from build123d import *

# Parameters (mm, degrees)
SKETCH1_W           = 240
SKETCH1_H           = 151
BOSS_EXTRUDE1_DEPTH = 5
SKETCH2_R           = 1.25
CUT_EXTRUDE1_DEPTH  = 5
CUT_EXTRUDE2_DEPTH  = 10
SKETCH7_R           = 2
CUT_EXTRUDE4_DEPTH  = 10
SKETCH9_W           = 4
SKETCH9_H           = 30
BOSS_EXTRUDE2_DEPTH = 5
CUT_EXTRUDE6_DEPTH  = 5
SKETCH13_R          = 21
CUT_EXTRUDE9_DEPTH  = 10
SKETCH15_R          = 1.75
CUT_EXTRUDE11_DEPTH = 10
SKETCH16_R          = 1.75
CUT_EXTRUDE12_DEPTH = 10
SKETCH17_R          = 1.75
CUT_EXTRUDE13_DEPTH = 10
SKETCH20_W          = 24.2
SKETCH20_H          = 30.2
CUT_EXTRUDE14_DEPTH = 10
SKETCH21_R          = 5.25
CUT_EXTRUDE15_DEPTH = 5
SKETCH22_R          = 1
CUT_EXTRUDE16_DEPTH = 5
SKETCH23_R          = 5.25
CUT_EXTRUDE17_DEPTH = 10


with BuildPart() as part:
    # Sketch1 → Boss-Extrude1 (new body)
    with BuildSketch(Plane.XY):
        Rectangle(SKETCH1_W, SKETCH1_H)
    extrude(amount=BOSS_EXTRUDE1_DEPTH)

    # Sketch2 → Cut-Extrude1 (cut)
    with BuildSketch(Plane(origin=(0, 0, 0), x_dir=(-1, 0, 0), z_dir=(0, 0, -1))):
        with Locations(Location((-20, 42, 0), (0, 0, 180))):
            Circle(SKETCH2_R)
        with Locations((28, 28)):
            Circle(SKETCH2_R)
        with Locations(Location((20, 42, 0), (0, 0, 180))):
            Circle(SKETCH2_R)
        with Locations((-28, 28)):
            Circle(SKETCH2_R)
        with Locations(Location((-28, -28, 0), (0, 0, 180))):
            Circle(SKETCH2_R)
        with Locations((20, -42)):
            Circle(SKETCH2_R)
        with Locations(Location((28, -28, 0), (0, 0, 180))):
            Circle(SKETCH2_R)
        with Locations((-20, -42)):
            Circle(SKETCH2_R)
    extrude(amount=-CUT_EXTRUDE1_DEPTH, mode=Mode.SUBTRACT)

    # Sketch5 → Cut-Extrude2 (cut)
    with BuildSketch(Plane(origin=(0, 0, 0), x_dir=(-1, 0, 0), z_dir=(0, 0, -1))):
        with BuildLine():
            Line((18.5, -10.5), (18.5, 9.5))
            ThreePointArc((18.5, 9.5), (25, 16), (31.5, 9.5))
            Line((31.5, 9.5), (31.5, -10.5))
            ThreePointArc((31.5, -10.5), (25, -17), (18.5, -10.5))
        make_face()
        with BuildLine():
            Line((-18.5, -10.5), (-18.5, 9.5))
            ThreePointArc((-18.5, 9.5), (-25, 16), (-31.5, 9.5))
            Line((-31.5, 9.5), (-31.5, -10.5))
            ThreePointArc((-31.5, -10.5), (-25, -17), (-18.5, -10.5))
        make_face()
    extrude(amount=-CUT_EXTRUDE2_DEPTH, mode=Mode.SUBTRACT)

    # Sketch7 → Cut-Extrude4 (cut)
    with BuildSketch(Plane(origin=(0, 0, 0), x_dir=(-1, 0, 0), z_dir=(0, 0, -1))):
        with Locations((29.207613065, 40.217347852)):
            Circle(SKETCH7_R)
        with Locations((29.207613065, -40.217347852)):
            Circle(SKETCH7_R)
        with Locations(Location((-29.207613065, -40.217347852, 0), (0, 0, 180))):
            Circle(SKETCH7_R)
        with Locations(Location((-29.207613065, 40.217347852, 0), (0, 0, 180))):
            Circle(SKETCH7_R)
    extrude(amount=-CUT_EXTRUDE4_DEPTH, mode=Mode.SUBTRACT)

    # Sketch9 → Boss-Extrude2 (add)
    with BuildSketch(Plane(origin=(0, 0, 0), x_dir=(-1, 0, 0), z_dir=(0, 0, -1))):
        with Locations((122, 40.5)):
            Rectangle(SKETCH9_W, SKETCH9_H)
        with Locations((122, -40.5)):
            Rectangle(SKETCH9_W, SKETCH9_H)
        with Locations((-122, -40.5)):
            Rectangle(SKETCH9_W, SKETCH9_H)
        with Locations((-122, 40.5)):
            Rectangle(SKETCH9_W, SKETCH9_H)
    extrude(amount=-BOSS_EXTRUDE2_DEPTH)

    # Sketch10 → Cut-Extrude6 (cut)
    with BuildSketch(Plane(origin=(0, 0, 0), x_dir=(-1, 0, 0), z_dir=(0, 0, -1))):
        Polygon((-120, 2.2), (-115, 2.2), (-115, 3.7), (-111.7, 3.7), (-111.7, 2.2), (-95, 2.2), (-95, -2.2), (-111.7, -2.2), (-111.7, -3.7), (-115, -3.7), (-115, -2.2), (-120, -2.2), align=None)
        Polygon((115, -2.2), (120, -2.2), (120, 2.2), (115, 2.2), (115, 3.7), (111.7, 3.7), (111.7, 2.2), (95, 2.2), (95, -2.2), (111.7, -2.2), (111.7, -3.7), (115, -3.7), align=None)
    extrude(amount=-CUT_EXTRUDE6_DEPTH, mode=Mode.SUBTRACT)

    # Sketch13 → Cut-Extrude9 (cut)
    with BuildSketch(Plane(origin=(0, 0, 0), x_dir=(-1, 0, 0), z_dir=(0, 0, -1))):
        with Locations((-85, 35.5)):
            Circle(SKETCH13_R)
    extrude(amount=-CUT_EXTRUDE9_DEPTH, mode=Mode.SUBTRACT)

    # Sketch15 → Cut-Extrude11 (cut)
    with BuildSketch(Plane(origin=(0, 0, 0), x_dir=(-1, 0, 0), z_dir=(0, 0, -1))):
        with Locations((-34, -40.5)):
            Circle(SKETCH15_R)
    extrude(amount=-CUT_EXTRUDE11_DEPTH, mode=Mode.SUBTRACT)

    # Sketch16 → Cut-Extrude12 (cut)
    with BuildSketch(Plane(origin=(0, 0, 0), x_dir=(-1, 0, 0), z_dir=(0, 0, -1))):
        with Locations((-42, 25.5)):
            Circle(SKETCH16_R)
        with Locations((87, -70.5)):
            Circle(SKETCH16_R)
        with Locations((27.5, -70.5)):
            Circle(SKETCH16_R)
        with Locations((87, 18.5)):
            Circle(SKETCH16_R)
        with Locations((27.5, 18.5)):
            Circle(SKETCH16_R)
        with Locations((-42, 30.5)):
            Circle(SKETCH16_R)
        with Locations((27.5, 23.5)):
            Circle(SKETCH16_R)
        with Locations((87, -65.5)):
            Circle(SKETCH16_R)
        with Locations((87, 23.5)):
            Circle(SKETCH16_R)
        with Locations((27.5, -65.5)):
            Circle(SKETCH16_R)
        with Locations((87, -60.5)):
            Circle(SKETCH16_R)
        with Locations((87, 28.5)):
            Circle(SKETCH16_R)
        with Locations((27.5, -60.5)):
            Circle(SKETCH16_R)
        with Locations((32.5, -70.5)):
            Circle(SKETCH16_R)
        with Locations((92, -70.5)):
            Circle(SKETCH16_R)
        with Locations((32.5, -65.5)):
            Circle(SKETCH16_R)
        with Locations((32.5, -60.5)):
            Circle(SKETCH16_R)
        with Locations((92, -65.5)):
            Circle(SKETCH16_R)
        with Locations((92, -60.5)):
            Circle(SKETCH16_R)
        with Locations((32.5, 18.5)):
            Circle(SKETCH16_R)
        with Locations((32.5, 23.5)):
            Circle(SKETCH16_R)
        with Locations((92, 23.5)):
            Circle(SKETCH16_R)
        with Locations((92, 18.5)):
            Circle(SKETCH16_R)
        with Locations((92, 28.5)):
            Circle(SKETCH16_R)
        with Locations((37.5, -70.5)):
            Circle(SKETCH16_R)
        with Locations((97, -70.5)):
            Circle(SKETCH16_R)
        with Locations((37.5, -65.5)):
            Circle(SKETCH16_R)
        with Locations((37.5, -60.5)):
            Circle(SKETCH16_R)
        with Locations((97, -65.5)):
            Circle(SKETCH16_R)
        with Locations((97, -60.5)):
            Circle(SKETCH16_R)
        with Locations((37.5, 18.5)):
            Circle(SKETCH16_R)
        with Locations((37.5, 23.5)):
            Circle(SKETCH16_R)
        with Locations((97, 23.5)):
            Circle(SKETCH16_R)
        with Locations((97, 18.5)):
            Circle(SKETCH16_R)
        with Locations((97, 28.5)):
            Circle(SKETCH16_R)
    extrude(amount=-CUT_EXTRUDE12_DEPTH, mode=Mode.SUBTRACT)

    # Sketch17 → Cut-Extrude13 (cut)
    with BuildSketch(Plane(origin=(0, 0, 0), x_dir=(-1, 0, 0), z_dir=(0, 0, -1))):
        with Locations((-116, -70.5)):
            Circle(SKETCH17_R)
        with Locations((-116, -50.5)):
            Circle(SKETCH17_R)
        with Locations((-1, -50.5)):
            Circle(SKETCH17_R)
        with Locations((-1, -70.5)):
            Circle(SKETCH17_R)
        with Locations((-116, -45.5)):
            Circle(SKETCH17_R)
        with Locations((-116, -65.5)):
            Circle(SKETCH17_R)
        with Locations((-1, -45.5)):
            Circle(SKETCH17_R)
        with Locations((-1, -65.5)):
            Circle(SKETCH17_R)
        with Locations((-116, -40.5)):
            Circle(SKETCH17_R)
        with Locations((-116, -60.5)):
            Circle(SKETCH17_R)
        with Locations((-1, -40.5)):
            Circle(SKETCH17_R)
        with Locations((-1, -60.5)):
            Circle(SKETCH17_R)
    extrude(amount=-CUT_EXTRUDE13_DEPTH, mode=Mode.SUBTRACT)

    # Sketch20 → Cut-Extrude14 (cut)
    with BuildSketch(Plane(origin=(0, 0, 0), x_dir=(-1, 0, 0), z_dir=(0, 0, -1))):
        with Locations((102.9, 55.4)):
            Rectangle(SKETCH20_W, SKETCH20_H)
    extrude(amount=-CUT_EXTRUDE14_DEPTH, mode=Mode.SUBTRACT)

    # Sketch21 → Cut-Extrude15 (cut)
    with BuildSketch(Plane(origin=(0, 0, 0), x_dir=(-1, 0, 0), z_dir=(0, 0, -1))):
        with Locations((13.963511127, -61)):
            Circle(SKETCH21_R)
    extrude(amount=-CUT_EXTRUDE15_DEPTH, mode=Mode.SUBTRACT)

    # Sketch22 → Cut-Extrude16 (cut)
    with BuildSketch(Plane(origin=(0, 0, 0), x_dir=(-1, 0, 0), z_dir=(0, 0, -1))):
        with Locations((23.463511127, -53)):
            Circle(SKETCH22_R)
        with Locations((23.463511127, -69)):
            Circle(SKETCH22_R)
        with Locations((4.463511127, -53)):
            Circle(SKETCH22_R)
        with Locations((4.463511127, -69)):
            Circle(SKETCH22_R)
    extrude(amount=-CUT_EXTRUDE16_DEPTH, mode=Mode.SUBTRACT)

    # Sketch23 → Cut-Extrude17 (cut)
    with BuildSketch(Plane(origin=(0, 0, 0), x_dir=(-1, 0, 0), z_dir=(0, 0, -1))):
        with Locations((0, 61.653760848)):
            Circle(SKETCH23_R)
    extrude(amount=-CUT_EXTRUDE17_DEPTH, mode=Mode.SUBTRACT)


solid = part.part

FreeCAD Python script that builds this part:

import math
import FreeCAD as App
import Part
import Sketcher

V = App.Vector
Q = App.Units.Quantity


def add_polygon(sketch, points):
    """Adds a closed chain of lines whose ends are joined by coincident constraints."""
    first, n = sketch.GeometryCount, len(points)
    for a, b in zip(points, points[1:] + points[:1]):
        sketch.addGeometry(Part.LineSegment(App.Vector(*a, 0), App.Vector(*b, 0)), False)
    for i in range(n):
        sketch.addConstraint(Sketcher.Constraint("Coincident", first + i, 2, first + (i + 1) % n, 1))

doc = App.newDocument("Part")
body = doc.addObject("PartDesign::Body", "Body")

# Sketch on XY plane
sketch1 = body.newObject("Sketcher::SketchObject", "Sketch")
sketch1.AttachmentSupport = (doc.getObject("XY_Plane"), [""])
sketch1.MapMode = "FlatFace"
add_polygon(sketch1, [(-120, 76), (-120, -76), (120, -76), (120, 76)])  # lines 0-3
sketch1.addConstraint([
    Sketcher.Constraint("Vertical", 0),
    Sketcher.Constraint("Horizontal", 1),
    Sketcher.Constraint("Vertical", 2),
    Sketcher.Constraint("Horizontal", 3),
    Sketcher.Constraint("Symmetric", 0, 2, 2, 2, -1, 1),
    Sketcher.Constraint("DistanceX", 1, 1, 1, 2, Q("240 mm")),
    Sketcher.Constraint("DistanceY", 0, 2, 0, 1, Q("151 mm")),
])
pad1 = body.newObject("PartDesign::Pad", "Pad")
pad1.Profile = sketch1
pad1.Length = 5

# Sketch on XY plane
sketch2 = body.newObject("Sketcher::SketchObject", "Sketch001")
sketch2.AttachmentSupport = (doc.getObject("XY_Plane"), [""])
sketch2.MapMode = "FlatFace"
sketch2.addGeometry([
    Part.Circle(V(20, 42, 0), V(0, 0, 1), 1.2),  # 0
    Part.Circle(V(-28, 28, 0), V(0, 0, 1), 1.2),  # 1
    Part.Circle(V(-20, 42, 0), V(0, 0, 1), 1.2),  # 2
    Part.Circle(V(28, 28, 0), V(0, 0, 1), 1.2),  # 3
    Part.Circle(V(28, -28, 0), V(0, 0, 1), 1.2),  # 4
    Part.Circle(V(-20, -42, 0), V(0, 0, 1), 1.2),  # 5
    Part.Circle(V(-28, -28, 0), V(0, 0, 1), 1.2),  # 6
    Part.Circle(V(20, -42, 0), V(0, 0, 1), 1.2),  # 7
], False)
sketch2.addConstraint([
    Sketcher.Constraint("Equal", 0, 1),
    Sketcher.Constraint("Equal", 1, 2),
    Sketcher.Constraint("Equal", 2, 3),
    Sketcher.Constraint("Equal", 3, 4),
    Sketcher.Constraint("Equal", 4, 5),
    Sketcher.Constraint("Equal", 5, 6),
    Sketcher.Constraint("Equal", 6, 7),
    Sketcher.Constraint("Symmetric", 1, 3, 4, 3, -1, 1),
    Sketcher.Constraint("Symmetric", 0, 3, 5, 3, -1, 1),
    Sketcher.Constraint("Symmetric", 3, 3, 6, 3, -1, 1),
    Sketcher.Constraint("Symmetric", 2, 3, 7, 3, -1, 1),
    Sketcher.Constraint("Symmetric", 0, 3, 2, 3, -2),
    Sketcher.Constraint("Symmetric", 1, 3, 3, 3, -2),
    Sketcher.Constraint("Diameter", 0, Q("2.5 mm")),
    Sketcher.Constraint("DistanceX", -1, 1, 0, 3, Q("20 mm")),
    Sketcher.Constraint("DistanceY", -1, 1, 0, 3, Q("42 mm")),
    Sketcher.Constraint("DistanceX", 1, 3, -1, 1, Q("28 mm")),
    Sketcher.Constraint("DistanceY", -1, 1, 1, 3, Q("28 mm")),
])
pocket1 = body.newObject("PartDesign::Pocket", "Pocket")
pocket1.Profile = sketch2
pocket1.Length = 5
pocket1.Reversed = True

# Sketch on XY plane
sketch3 = body.newObject("Sketcher::SketchObject", "Sketch002")
sketch3.AttachmentSupport = (doc.getObject("XY_Plane"), [""])
sketch3.MapMode = "FlatFace"
sketch3.addGeometry([
    Part.LineSegment(V(-18, 10, 0), V(-18, -10, 0)),  # 0
    Part.ArcOfCircle(Part.Circle(V(-25, -10, 0), V(0, 0, 1), 6), math.radians(180), math.radians(360)),  # 1
    Part.LineSegment(V(-32, -10, 0), V(-32, 10, 0)),  # 2
    Part.ArcOfCircle(Part.Circle(V(-25, 10, 0), V(0, 0, 1), 6), math.radians(0), math.radians(180)),  # 3
    Part.LineSegment(V(18, -10, 0), V(18, 10, 0)),  # 4
    Part.ArcOfCircle(Part.Circle(V(25, 10, 0), V(0, 0, 1), 6), math.radians(0), math.radians(180)),  # 5
    Part.LineSegment(V(32, 10, 0), V(32, -10, 0)),  # 6
    Part.ArcOfCircle(Part.Circle(V(25, -10, 0), V(0, 0, 1), 6), math.radians(180), math.radians(360)),  # 7
], False)
sketch3.addConstraint([
    Sketcher.Constraint("Tangent", 0, 2, 1, 2),
    Sketcher.Constraint("Tangent", 1, 1, 2, 1),
    Sketcher.Constraint("Tangent", 2, 2, 3, 2),
    Sketcher.Constraint("Tangent", 3, 1, 0, 1),
    Sketcher.Constraint("Tangent", 4, 2, 5, 2),
    Sketcher.Constraint("Tangent", 5, 1, 6, 1),
    Sketcher.Constraint("Tangent", 6, 2, 7, 2),
    Sketcher.Constraint("Tangent", 7, 1, 4, 1),
    Sketcher.Constraint("Vertical", 0),
    Sketcher.Constraint("Vertical", 2),
    Sketcher.Constraint("Vertical", 4),
    Sketcher.Constraint("Vertical", 6),
    Sketcher.Constraint("Equal", 3, 5),
    Sketcher.Constraint("Symmetric", 3, 3, 5, 3, -2),
    Sketcher.Constraint("Horizontal", 1, 3, 7, 3),
    Sketcher.Constraint("Radius", 1, Q("6.5 mm")),
    Sketcher.Constraint("DistanceY", 0, 2, 0, 1, Q("20 mm")),
    Sketcher.Constraint("DistanceX", 1, 3, -1, 1, Q("25 mm")),
    Sketcher.Constraint("DistanceY", 1, 3, -1, 1, Q("10.5 mm")),
])
pocket2 = body.newObject("PartDesign::Pocket", "Pocket001")
pocket2.Profile = sketch3
pocket2.Length = 10
pocket2.Reversed = True

# Sketch on XY plane
sketch4 = body.newObject("Sketcher::SketchObject", "Sketch003")
sketch4.AttachmentSupport = (doc.getObject("XY_Plane"), [""])
sketch4.MapMode = "FlatFace"
sketch4.addGeometry([
    Part.Circle(V(-29.2, 40.2, 0), V(0, 0, 1), 2),
    Part.Circle(V(-29.2, -40.2, 0), V(0, 0, 1), 2),
    Part.Circle(V(29.2, -40.2, 0), V(0, 0, 1), 2),
    Part.Circle(V(29.2, 40.2, 0), V(0, 0, 1), 2),
], False)
sketch4.addConstraint([
    Sketcher.Constraint("Equal", 0, 1),
    Sketcher.Constraint("Equal", 1, 2),
    Sketcher.Constraint("Equal", 2, 3),
    Sketcher.Constraint("Symmetric", 0, 3, 2, 3, -1, 1),
    Sketcher.Constraint("Symmetric", 1, 3, 3, 3, -1, 1),
    Sketcher.Constraint("Symmetric", 1, 3, 2, 3, -2),
    Sketcher.Constraint("Diameter", 0, Q("4 mm")),
    Sketcher.Constraint("DistanceX", 0, 3, -1, 1, Q("29.207613 mm")),
    Sketcher.Constraint("DistanceY", -1, 1, 0, 3, Q("40.217348 mm")),
])
pocket3 = body.newObject("PartDesign::Pocket", "Pocket002")
pocket3.Profile = sketch4
pocket3.Length = 10
pocket3.Reversed = True

# Sketch on XY plane
sketch5 = body.newObject("Sketcher::SketchObject", "Sketch004")
sketch5.AttachmentSupport = (doc.getObject("XY_Plane"), [""])
sketch5.MapMode = "FlatFace"
add_polygon(sketch5, [(-120, 55.5), (-120, 25.5), (-124, 25.5), (-124, 55.5)])  # lines 0-3
add_polygon(sketch5, [(-120, -25.5), (-120, -55.5), (-124, -55.5), (-124, -25.5)])  # lines 4-7
add_polygon(sketch5, [(124, -25.5), (124, -55.5), (120, -55.5), (120, -25.5)])  # lines 8-11
add_polygon(sketch5, [(124, 55.5), (124, 25.5), (120, 25.5), (120, 55.5)])  # lines 12-15
sketch5.addConstraint([
    Sketcher.Constraint("Vertical", 0),
    Sketcher.Constraint("Horizontal", 1),
    Sketcher.Constraint("Vertical", 2),
    Sketcher.Constraint("Horizontal", 3),
    Sketcher.Constraint("Vertical", 4),
    Sketcher.Constraint("Horizontal", 5),
    Sketcher.Constraint("Vertical", 6),
    Sketcher.Constraint("Horizontal", 7),
    Sketcher.Constraint("Vertical", 8),
    Sketcher.Constraint("Horizontal", 9),
    Sketcher.Constraint("Vertical", 10),
    Sketcher.Constraint("Horizontal", 11),
    Sketcher.Constraint("Vertical", 12),
    Sketcher.Constraint("Horizontal", 13),
    Sketcher.Constraint("Vertical", 14),
    Sketcher.Constraint("Horizontal", 15),
    Sketcher.Constraint("Symmetric", 2, 2, 8, 2, -1, 1),
    Sketcher.Constraint("Symmetric", 0, 2, 10, 2, -1, 1),
    Sketcher.Constraint("Symmetric", 6, 2, 12, 2, -1, 1),
    Sketcher.Constraint("Symmetric", 4, 2, 14, 2, -1, 1),
    Sketcher.Constraint("Symmetric", 5, 2, 8, 2, -2),
    Sketcher.Constraint("Symmetric", 7, 2, 10, 2, -2),
    Sketcher.Constraint("DistanceX", 1, 2, 1, 1, Q("4 mm")),
    Sketcher.Constraint("DistanceY", 0, 2, 0, 1, Q("30 mm")),
    Sketcher.Constraint("DistanceX", 0, 2, -1, 1, Q("120 mm")),
    Sketcher.Constraint("DistanceY", 4, 2, 0, 2, Q("81 mm")),
])
pad2 = body.newObject("PartDesign::Pad", "Pad001")
pad2.Profile = sketch5
pad2.Length = 5

# Sketch on XY plane
sketch6 = body.newObject("Sketcher::SketchObject", "Sketch005")
sketch6.AttachmentSupport = (doc.getObject("XY_Plane"), [""])
sketch6.MapMode = "FlatFace"
add_polygon(sketch6, [(115, 2.2), (120, 2.2), (120, -2.2), (115, -2.2), (115, -3.7), (111.7, -3.7), (111.7, -2.2), (95, -2.2), (95, 2.2), (111.7, 2.2), (111.7, 3.7), (115, 3.7)])  # lines 0-11
add_polygon(sketch6, [(-115, -2.2), (-120, -2.2), (-120, 2.2), (-115, 2.2), (-115, 3.7), (-111.7, 3.7), (-111.7, 2.2), (-95, 2.2), (-95, -2.2), (-111.7, -2.2), (-111.7, -3.7), (-115, -3.7)])  # lines 12-23
sketch6.addConstraint([
    Sketcher.Constraint("Horizontal", 0),
    Sketcher.Constraint("Vertical", 1),
    Sketcher.Constraint("Horizontal", 2),
    Sketcher.Constraint("Vertical", 3),
    Sketcher.Constraint("Horizontal", 4),
    Sketcher.Constraint("Vertical", 5),
    Sketcher.Constraint("Horizontal", 6),
    Sketcher.Constraint("Vertical", 7),
    Sketcher.Constraint("Horizontal", 8),
    Sketcher.Constraint("Vertical", 9),
    Sketcher.Constraint("Horizontal", 10),
    Sketcher.Constraint("Vertical", 11),
    Sketcher.Constraint("Horizontal", 12),
    Sketcher.Constraint("Vertical", 13),
    Sketcher.Constraint("Horizontal", 14),
    Sketcher.Constraint("Vertical", 15),
    Sketcher.Constraint("Horizontal", 16),
    Sketcher.Constraint("Vertical", 17),
    Sketcher.Constraint("Horizontal", 18),
    Sketcher.Constraint("Vertical", 19),
    Sketcher.Constraint("Horizontal", 20),
    Sketcher.Constraint("Vertical", 21),
    Sketcher.Constraint("Horizontal", 22),
    Sketcher.Constraint("Vertical", 23),
    Sketcher.Constraint("Symmetric", 0, 2, 12, 2, -1, 1),
    Sketcher.Constraint("Symmetric", 2, 2, 14, 2, -1, 1),
    Sketcher.Constraint("Symmetric", 4, 2, 16, 2, -1, 1),
    Sketcher.Constraint("Symmetric", 6, 2, 18, 2, -1, 1),
    Sketcher.Constraint("Symmetric", 8, 2, 20, 2, -1, 1),
    Sketcher.Constraint("Symmetric", 10, 2, 22, 2, -1, 1),
    Sketcher.Constraint("Symmetric", 11, 2, 14, 2, -2),
    Sketcher.Constraint("Symmetric", 9, 2, 16, 2, -2),
    Sketcher.Constraint("Horizontal", 2, 2, 5, 2),
    Sketcher.Constraint("Horizontal", 0, 2, 7, 2),
    Sketcher.Constraint("DistanceX", 0, 1, 0, 2, Q("5 mm")),
    Sketcher.Constraint("DistanceX", 4, 2, 4, 1, Q("3.3 mm")),
    Sketcher.Constraint("DistanceX", 6, 2, 6, 1, Q("16.7 mm")),
    Sketcher.Constraint("DistanceY", 1, 2, 1, 1, Q("4.4 mm")),
    Sketcher.Constraint("DistanceY", 3, 2, 3, 1, Q("1.5 mm")),
    Sketcher.Constraint("DistanceX", -1, 1, 0, 2, Q("120 mm")),
])
pocket4 = body.newObject("PartDesign::Pocket", "Pocket003")
pocket4.Profile = sketch6
pocket4.Length = 5
pocket4.Reversed = True

# Sketch on XY plane
sketch7 = body.newObject("Sketcher::SketchObject", "Sketch006")
sketch7.AttachmentSupport = (doc.getObject("XY_Plane"), [""])
sketch7.MapMode = "FlatFace"
sketch7.addGeometry(Part.Circle(V(85, 36, 0), V(0, 0, 1), 21), False)
sketch7.addConstraint([
    Sketcher.Constraint("Diameter", 0, Q("42 mm")),
    Sketcher.Constraint("DistanceX", -1, 1, 0, 3, Q("85 mm")),
    Sketcher.Constraint("DistanceY", -1, 1, 0, 3, Q("35.5 mm")),
])
pocket5 = body.newObject("PartDesign::Pocket", "Pocket004")
pocket5.Profile = sketch7
pocket5.Length = 10
pocket5.Reversed = True

# Sketch on XY plane
sketch8 = body.newObject("Sketcher::SketchObject", "Sketch007")
sketch8.AttachmentSupport = (doc.getObject("XY_Plane"), [""])
sketch8.MapMode = "FlatFace"
sketch8.addGeometry(Part.Circle(V(34, -40.5, 0), V(0, 0, 1), 1.8), False)
sketch8.addConstraint([
    Sketcher.Constraint("Diameter", 0, Q("3.5 mm")),
    Sketcher.Constraint("DistanceX", -1, 1, 0, 3, Q("34 mm")),
    Sketcher.Constraint("DistanceY", 0, 3, -1, 1, Q("40.5 mm")),
])
pocket6 = body.newObject("PartDesign::Pocket", "Pocket005")
pocket6.Profile = sketch8
pocket6.Length = 10
pocket6.Reversed = True

# Sketch on XY plane
sketch9 = body.newObject("Sketcher::SketchObject", "Sketch008")
sketch9.AttachmentSupport = (doc.getObject("XY_Plane"), [""])
sketch9.MapMode = "FlatFace"
sketch9.addGeometry([
    Part.Circle(V(42, 25.5, 0), V(0, 0, 1), 1.8),  # 0
    Part.Circle(V(-87, -70.5, 0), V(0, 0, 1), 1.8),  # 1
    Part.Circle(V(-27.5, -70.5, 0), V(0, 0, 1), 1.8),  # 2
    Part.Circle(V(-87, 18.5, 0), V(0, 0, 1), 1.8),  # 3
    Part.Circle(V(-27.5, 18.5, 0), V(0, 0, 1), 1.8),  # 4
    Part.Circle(V(42, 30.5, 0), V(0, 0, 1), 1.8),  # 5
    Part.Circle(V(-27.5, 23.5, 0), V(0, 0, 1), 1.8),  # 6
    Part.Circle(V(-87, -65.5, 0), V(0, 0, 1), 1.8),  # 7
    Part.Circle(V(-87, 23.5, 0), V(0, 0, 1), 1.8),  # 8
    Part.Circle(V(-27.5, -65.5, 0), V(0, 0, 1), 1.8),  # 9
    Part.Circle(V(-87, -60.5, 0), V(0, 0, 1), 1.8),  # 10
    Part.Circle(V(-87, 28.5, 0), V(0, 0, 1), 1.8),  # 11
    Part.Circle(V(-27.5, -60.5, 0), V(0, 0, 1), 1.8),  # 12
    Part.Circle(V(-32.5, -70.5, 0), V(0, 0, 1), 1.8),  # 13
    Part.Circle(V(-92, -70.5, 0), V(0, 0, 1), 1.8),  # 14
    Part.Circle(V(-32.5, -65.5, 0), V(0, 0, 1), 1.8),  # 15
    Part.Circle(V(-32.5, -60.5, 0), V(0, 0, 1), 1.8),  # 16
    Part.Circle(V(-92, -65.5, 0), V(0, 0, 1), 1.8),  # 17
    Part.Circle(V(-92, -60.5, 0), V(0, 0, 1), 1.8),  # 18
    Part.Circle(V(-32.5, 18.5, 0), V(0, 0, 1), 1.8),  # 19
    Part.Circle(V(-32.5, 23.5, 0), V(0, 0, 1), 1.8),  # 20
    Part.Circle(V(-92, 23.5, 0), V(0, 0, 1), 1.8),  # 21
    Part.Circle(V(-92, 18.5, 0), V(0, 0, 1), 1.8),  # 22
    Part.Circle(V(-92, 28.5, 0), V(0, 0, 1), 1.8),  # 23
    Part.Circle(V(-37.5, -70.5, 0), V(0, 0, 1), 1.8),  # 24
    Part.Circle(V(-97, -70.5, 0), V(0, 0, 1), 1.8),  # 25
    Part.Circle(V(-37.5, -65.5, 0), V(0, 0, 1), 1.8),  # 26
    Part.Circle(V(-37.5, -60.5, 0), V(0, 0, 1), 1.8),  # 27
    Part.Circle(V(-97, -65.5, 0), V(0, 0, 1), 1.8),  # 28
    Part.Circle(V(-97, -60.5, 0), V(0, 0, 1), 1.8),  # 29
    Part.Circle(V(-37.5, 18.5, 0), V(0, 0, 1), 1.8),  # 30
    Part.Circle(V(-37.5, 23.5, 0), V(0, 0, 1), 1.8),  # 31
    Part.Circle(V(-97, 23.5, 0), V(0, 0, 1), 1.8),  # 32
    Part.Circle(V(-97, 18.5, 0), V(0, 0, 1), 1.8),  # 33
    Part.Circle(V(-97, 28.5, 0), V(0, 0, 1), 1.8),  # 34
], False)
sketch9.addConstraint([
    Sketcher.Constraint("Equal", 0, 1),
    Sketcher.Constraint("Equal", 1, 2),
    Sketcher.Constraint("Equal", 2, 3),
    Sketcher.Constraint("Equal", 3, 4),
    Sketcher.Constraint("Equal", 4, 5),
    Sketcher.Constraint("Equal", 5, 6),
    Sketcher.Constraint("Equal", 6, 7),
    Sketcher.Constraint("Equal", 7, 8),
    Sketcher.Constraint("Equal", 8, 9),
    Sketcher.Constraint("Equal", 9, 10),
    Sketcher.Constraint("Equal", 10, 11),
    Sketcher.Constraint("Equal", 11, 12),
    Sketcher.Constraint("Equal", 12, 13),
    Sketcher.Constraint("Equal", 13, 14),
    Sketcher.Constraint("Equal", 14, 15),
    Sketcher.Constraint("Equal", 15, 16),
    Sketcher.Constraint("Equal", 16, 17),
    Sketcher.Constraint("Equal", 17, 18),
    Sketcher.Constraint("Equal", 18, 19),
    Sketcher.Constraint("Equal", 19, 20),
    Sketcher.Constraint("Equal", 20, 21),
    Sketcher.Constraint("Equal", 21, 22),
    Sketcher.Constraint("Equal", 22, 23),
    Sketcher.Constraint("Equal", 23, 24),
    Sketcher.Constraint("Equal", 24, 25),
    Sketcher.Constraint("Equal", 25, 26),
    Sketcher.Constraint("Equal", 26, 27),
    Sketcher.Constraint("Equal", 27, 28),
    Sketcher.Constraint("Equal", 28, 29),
    Sketcher.Constraint("Equal", 29, 30),
    Sketcher.Constraint("Equal", 30, 31),
    Sketcher.Constraint("Equal", 31, 32),
    Sketcher.Constraint("Equal", 32, 33),
    Sketcher.Constraint("Equal", 33, 34),
    Sketcher.Constraint("Horizontal", 1, 3, 2, 3),
    Sketcher.Constraint("Horizontal", 3, 3, 4, 3),
    Sketcher.Constraint("Horizontal", 6, 3, 8, 3),
    Sketcher.Constraint("Horizontal", 7, 3, 9, 3),
    Sketcher.Constraint("Horizontal", 10, 3, 12, 3),
    Sketcher.Constraint("Horizontal", 2, 3, 13, 3),
    Sketcher.Constraint("Horizontal", 13, 3, 14, 3),
    Sketcher.Constraint("Horizontal", 9, 3, 15, 3),
    Sketcher.Constraint("Horizontal", 12, 3, 16, 3),
    Sketcher.Constraint("Horizontal", 15, 3, 17, 3),
    Sketcher.Constraint("Horizontal", 16, 3, 18, 3),
    Sketcher.Constraint("Horizontal", 4, 3, 19, 3),
    Sketcher.Constraint("Horizontal", 8, 3, 20, 3),
    Sketcher.Constraint("Horizontal", 20, 3, 21, 3),
    Sketcher.Constraint("Horizontal", 19, 3, 22, 3),
    Sketcher.Constraint("Horizontal", 11, 3, 23, 3),
    Sketcher.Constraint("Horizontal", 14, 3, 24, 3),
    Sketcher.Constraint("Horizontal", 24, 3, 25, 3),
    Sketcher.Constraint("Horizontal", 17, 3, 26, 3),
    Sketcher.Constraint("Horizontal", 18, 3, 27, 3),
    Sketcher.Constraint("Horizontal", 26, 3, 28, 3),
    Sketcher.Constraint("Horizontal", 27, 3, 29, 3),
    Sketcher.Constraint("Horizontal", 22, 3, 30, 3),
    Sketcher.Constraint("Horizontal", 21, 3, 31, 3),
    Sketcher.Constraint("Horizontal", 31, 3, 32, 3),
    Sketcher.Constraint("Horizontal", 30, 3, 33, 3),
    Sketcher.Constraint("Horizontal", 23, 3, 34, 3),
    Sketcher.Constraint("Vertical", 1, 3, 3, 3),
    Sketcher.Constraint("Vertical", 2, 3, 4, 3),
    Sketcher.Constraint("Vertical", 0, 3, 5, 3),
    Sketcher.Constraint("Vertical", 4, 3, 6, 3),
    Sketcher.Constraint("Vertical", 3, 3, 7, 3),
    Sketcher.Constraint("Vertical", 7, 3, 8, 3),
    Sketcher.Constraint("Vertical", 6, 3, 9, 3),
    Sketcher.Constraint("Vertical", 8, 3, 10, 3),
    Sketcher.Constraint("Vertical", 10, 3, 11, 3),
    Sketcher.Constraint("Vertical", 9, 3, 12, 3),
    Sketcher.Constraint("Vertical", 13, 3, 15, 3),
    Sketcher.Constraint("Vertical", 15, 3, 16, 3),
    Sketcher.Constraint("Vertical", 14, 3, 17, 3),
    Sketcher.Constraint("Vertical", 17, 3, 18, 3),
    Sketcher.Constraint("Vertical", 16, 3, 19, 3),
    Sketcher.Constraint("Vertical", 19, 3, 20, 3),
    Sketcher.Constraint("Vertical", 18, 3, 21, 3),
    Sketcher.Constraint("Vertical", 21, 3, 22, 3),
    Sketcher.Constraint("Vertical", 22, 3, 23, 3),
    Sketcher.Constraint("Vertical", 24, 3, 26, 3),
    Sketcher.Constraint("Vertical", 26, 3, 27, 3),
    Sketcher.Constraint("Vertical", 25, 3, 28, 3),
    Sketcher.Constraint("Vertical", 28, 3, 29, 3),
    Sketcher.Constraint("Vertical", 27, 3, 30, 3),
    Sketcher.Constraint("Vertical", 30, 3, 31, 3),
    Sketcher.Constraint("Vertical", 29, 3, 32, 3),
    Sketcher.Constraint("Vertical", 32, 3, 33, 3),
    Sketcher.Constraint("Vertical", 33, 3, 34, 3),
    Sketcher.Constraint("Diameter", 0, Q("3.5 mm")),
    Sketcher.Constraint("DistanceX", -1, 1, 0, 3, Q("42 mm")),
    Sketcher.Constraint("DistanceX", 1, 3, -1, 1, Q("87 mm")),
    Sketcher.Constraint("DistanceX", 14, 3, -1, 1, Q("92 mm")),
    Sketcher.Constraint("DistanceX", 25, 3, -1, 1, Q("97 mm")),
    Sketcher.Constraint("DistanceY", 1, 3, 0, 3, Q("96 mm")),
    Sketcher.Constraint("DistanceY", 1, 3, 3, 3, Q("89 mm")),
    Sketcher.Constraint("DistanceY", 0, 3, 5, 3, Q("5 mm")),
    Sketcher.Constraint("DistanceY", 4, 3, 6, 3, Q("5 mm")),
    Sketcher.Constraint("DistanceY", 1, 3, 7, 3, Q("5 mm")),
    Sketcher.Constraint("DistanceY", 7, 3, 10, 3, Q("5 mm")),
    Sketcher.Constraint("DistanceY", 8, 3, 11, 3, Q("5 mm")),
    Sketcher.Constraint("DistanceX", 13, 3, 2, 3, Q("5 mm")),
    Sketcher.Constraint("DistanceX", 24, 3, 13, 3, Q("5 mm")),
    Sketcher.Constraint("DistanceY", -1, 1, 0, 3, Q("25.5 mm")),
    Sketcher.Constraint("DistanceX", 2, 3, -1, 1, Q("27.5 mm")),
])
pocket7 = body.newObject("PartDesign::Pocket", "Pocket006")
pocket7.Profile = sketch9
pocket7.Length = 10
pocket7.Reversed = True

# Sketch on XY plane
sketch10 = body.newObject("Sketcher::SketchObject", "Sketch009")
sketch10.AttachmentSupport = (doc.getObject("XY_Plane"), [""])
sketch10.MapMode = "FlatFace"
sketch10.addGeometry([
    Part.Circle(V(116, -70.5, 0), V(0, 0, 1), 1.8),  # 0
    Part.Circle(V(116, -50.5, 0), V(0, 0, 1), 1.8),  # 1
    Part.Circle(V(1, -50.5, 0), V(0, 0, 1), 1.8),  # 2
    Part.Circle(V(1, -70.5, 0), V(0, 0, 1), 1.8),  # 3
    Part.Circle(V(116, -45.5, 0), V(0, 0, 1), 1.8),  # 4
    Part.Circle(V(116, -65.5, 0), V(0, 0, 1), 1.8),  # 5
    Part.Circle(V(1, -45.5, 0), V(0, 0, 1), 1.8),  # 6
    Part.Circle(V(1, -65.5, 0), V(0, 0, 1), 1.8),  # 7
    Part.Circle(V(116, -40.5, 0), V(0, 0, 1), 1.8),  # 8
    Part.Circle(V(116, -60.5, 0), V(0, 0, 1), 1.8),  # 9
    Part.Circle(V(1, -40.5, 0), V(0, 0, 1), 1.8),  # 10
    Part.Circle(V(1, -60.5, 0), V(0, 0, 1), 1.8),  # 11
], False)
sketch10.addConstraint([
    Sketcher.Constraint("Equal", 0, 1),
    Sketcher.Constraint("Equal", 1, 2),
    Sketcher.Constraint("Equal", 2, 3),
    Sketcher.Constraint("Equal", 3, 4),
    Sketcher.Constraint("Equal", 4, 5),
    Sketcher.Constraint("Equal", 5, 6),
    Sketcher.Constraint("Equal", 6, 7),
    Sketcher.Constraint("Equal", 7, 8),
    Sketcher.Constraint("Equal", 8, 9),
    Sketcher.Constraint("Equal", 9, 10),
    Sketcher.Constraint("Equal", 10, 11),
    Sketcher.Constraint("Horizontal", 1, 3, 2, 3),
    Sketcher.Constraint("Horizontal", 0, 3, 3, 3),
    Sketcher.Constraint("Horizontal", 4, 3, 6, 3),
    Sketcher.Constraint("Horizontal", 5, 3, 7, 3),
    Sketcher.Constraint("Horizontal", 8, 3, 10, 3),
    Sketcher.Constraint("Horizontal", 9, 3, 11, 3),
    Sketcher.Constraint("Vertical", 0, 3, 1, 3),
    Sketcher.Constraint("Vertical", 2, 3, 3, 3),
    Sketcher.Constraint("Vertical", 1, 3, 4, 3),
    Sketcher.Constraint("Vertical", 4, 3, 5, 3),
    Sketcher.Constraint("Vertical", 3, 3, 6, 3),
    Sketcher.Constraint("Vertical", 6, 3, 7, 3),
    Sketcher.Constraint("Vertical", 5, 3, 8, 3),
    Sketcher.Constraint("Vertical", 8, 3, 9, 3),
    Sketcher.Constraint("Vertical", 7, 3, 10, 3),
    Sketcher.Constraint("Vertical", 10, 3, 11, 3),
    Sketcher.Constraint("Diameter", 0, Q("3.5 mm")),
    Sketcher.Constraint("DistanceX", -1, 1, 0, 3, Q("116 mm")),
    Sketcher.Constraint("DistanceX", -1, 1, 2, 3, Q("1 mm")),
    Sketcher.Constraint("DistanceY", 0, 3, 1, 3, Q("20 mm")),
    Sketcher.Constraint("DistanceY", 1, 3, 4, 3, Q("5 mm")),
    Sketcher.Constraint("DistanceY", 0, 3, 5, 3, Q("5 mm")),
    Sketcher.Constraint("DistanceY", 4, 3, 8, 3, Q("5 mm")),
    Sketcher.Constraint("DistanceY", 5, 3, 9, 3, Q("5 mm")),
    Sketcher.Constraint("DistanceY", 0, 3, -1, 1, Q("70.5 mm")),
])
pocket8 = body.newObject("PartDesign::Pocket", "Pocket007")
pocket8.Profile = sketch10
pocket8.Length = 10
pocket8.Reversed = True

# Sketch on XY plane
sketch11 = body.newObject("Sketcher::SketchObject", "Sketch010")
sketch11.AttachmentSupport = (doc.getObject("XY_Plane"), [""])
sketch11.MapMode = "FlatFace"
add_polygon(sketch11, [(-91, 70), (-91, 40), (-115, 40), (-115, 70)])  # lines 0-3
sketch11.addConstraint([
    Sketcher.Constraint("Vertical", 0),
    Sketcher.Constraint("Horizontal", 1),
    Sketcher.Constraint("Vertical", 2),
    Sketcher.Constraint("Horizontal", 3),
    Sketcher.Constraint("DistanceX", 1, 2, 1, 1, Q("24.2 mm")),
    Sketcher.Constraint("DistanceY", 0, 2, 0, 1, Q("30.2 mm")),
    Sketcher.Constraint("DistanceX", 1, 2, -1, 1, Q("115 mm")),
    Sketcher.Constraint("DistanceY", -1, 1, 0, 2, Q("40.3 mm")),
])
pocket9 = body.newObject("PartDesign::Pocket", "Pocket008")
pocket9.Profile = sketch11
pocket9.Length = 10
pocket9.Reversed = True

# Sketch on XY plane
sketch12 = body.newObject("Sketcher::SketchObject", "Sketch011")
sketch12.AttachmentSupport = (doc.getObject("XY_Plane"), [""])
sketch12.MapMode = "FlatFace"
sketch12.addGeometry(Part.Circle(V(-14, -61, 0), V(0, 0, 1), 5), False)
sketch12.addConstraint([
    Sketcher.Constraint("Diameter", 0, Q("10.5 mm")),
    Sketcher.Constraint("DistanceY", 0, 3, -1, 1, Q("61 mm")),
    Sketcher.Constraint("DistanceX", 0, 3, -1, 1, Q("13.963511 mm")),
])
pocket10 = body.newObject("PartDesign::Pocket", "Pocket009")
pocket10.Profile = sketch12
pocket10.Length = 5
pocket10.Reversed = True

# Sketch on XY plane
sketch13 = body.newObject("Sketcher::SketchObject", "Sketch012")
sketch13.AttachmentSupport = (doc.getObject("XY_Plane"), [""])
sketch13.MapMode = "FlatFace"
sketch13.addGeometry([
    Part.Circle(V(-23.5, -53, 0), V(0, 0, 1), 1),
    Part.Circle(V(-23.5, -69, 0), V(0, 0, 1), 1),
    Part.Circle(V(-4.5, -53, 0), V(0, 0, 1), 1),
    Part.Circle(V(-4.5, -69, 0), V(0, 0, 1), 1),
], False)
sketch13.addConstraint([
    Sketcher.Constraint("Equal", 0, 1),
    Sketcher.Constraint("Equal", 1, 2),
    Sketcher.Constraint("Equal", 2, 3),
    Sketcher.Constraint("Horizontal", 0, 3, 2, 3),
    Sketcher.Constraint("Horizontal", 1, 3, 3, 3),
    Sketcher.Constraint("Vertical", 0, 3, 1, 3),
    Sketcher.Constraint("Vertical", 2, 3, 3, 3),
    Sketcher.Constraint("Diameter", 0, Q("2 mm")),
    Sketcher.Constraint("DistanceY", 0, 3, -1, 1, Q("53 mm")),
    Sketcher.Constraint("DistanceY", 1, 3, -1, 1, Q("69 mm")),
    Sketcher.Constraint("DistanceX", 0, 3, 2, 3, Q("19 mm")),
    Sketcher.Constraint("DistanceX", 0, 3, -1, 1, Q("23.463511 mm")),
])
pocket11 = body.newObject("PartDesign::Pocket", "Pocket010")
pocket11.Profile = sketch13
pocket11.Length = 5
pocket11.Reversed = True

# Sketch on XY plane
sketch14 = body.newObject("Sketcher::SketchObject", "Sketch013")
sketch14.AttachmentSupport = (doc.getObject("XY_Plane"), [""])
sketch14.MapMode = "FlatFace"
sketch14.addGeometry(Part.Circle(V(0, 62, 0), V(0, 0, 1), 5), False)
sketch14.addConstraint([
    Sketcher.Constraint("PointOnObject", 0, 3, -2),
    Sketcher.Constraint("Diameter", 0, Q("10.5 mm")),
    Sketcher.Constraint("DistanceY", -1, 1, 0, 3, Q("61.653761 mm")),
])
pocket12 = body.newObject("PartDesign::Pocket", "Pocket011")
pocket12.Profile = sketch14
pocket12.Length = 10
pocket12.Reversed = True

doc.recompute()
